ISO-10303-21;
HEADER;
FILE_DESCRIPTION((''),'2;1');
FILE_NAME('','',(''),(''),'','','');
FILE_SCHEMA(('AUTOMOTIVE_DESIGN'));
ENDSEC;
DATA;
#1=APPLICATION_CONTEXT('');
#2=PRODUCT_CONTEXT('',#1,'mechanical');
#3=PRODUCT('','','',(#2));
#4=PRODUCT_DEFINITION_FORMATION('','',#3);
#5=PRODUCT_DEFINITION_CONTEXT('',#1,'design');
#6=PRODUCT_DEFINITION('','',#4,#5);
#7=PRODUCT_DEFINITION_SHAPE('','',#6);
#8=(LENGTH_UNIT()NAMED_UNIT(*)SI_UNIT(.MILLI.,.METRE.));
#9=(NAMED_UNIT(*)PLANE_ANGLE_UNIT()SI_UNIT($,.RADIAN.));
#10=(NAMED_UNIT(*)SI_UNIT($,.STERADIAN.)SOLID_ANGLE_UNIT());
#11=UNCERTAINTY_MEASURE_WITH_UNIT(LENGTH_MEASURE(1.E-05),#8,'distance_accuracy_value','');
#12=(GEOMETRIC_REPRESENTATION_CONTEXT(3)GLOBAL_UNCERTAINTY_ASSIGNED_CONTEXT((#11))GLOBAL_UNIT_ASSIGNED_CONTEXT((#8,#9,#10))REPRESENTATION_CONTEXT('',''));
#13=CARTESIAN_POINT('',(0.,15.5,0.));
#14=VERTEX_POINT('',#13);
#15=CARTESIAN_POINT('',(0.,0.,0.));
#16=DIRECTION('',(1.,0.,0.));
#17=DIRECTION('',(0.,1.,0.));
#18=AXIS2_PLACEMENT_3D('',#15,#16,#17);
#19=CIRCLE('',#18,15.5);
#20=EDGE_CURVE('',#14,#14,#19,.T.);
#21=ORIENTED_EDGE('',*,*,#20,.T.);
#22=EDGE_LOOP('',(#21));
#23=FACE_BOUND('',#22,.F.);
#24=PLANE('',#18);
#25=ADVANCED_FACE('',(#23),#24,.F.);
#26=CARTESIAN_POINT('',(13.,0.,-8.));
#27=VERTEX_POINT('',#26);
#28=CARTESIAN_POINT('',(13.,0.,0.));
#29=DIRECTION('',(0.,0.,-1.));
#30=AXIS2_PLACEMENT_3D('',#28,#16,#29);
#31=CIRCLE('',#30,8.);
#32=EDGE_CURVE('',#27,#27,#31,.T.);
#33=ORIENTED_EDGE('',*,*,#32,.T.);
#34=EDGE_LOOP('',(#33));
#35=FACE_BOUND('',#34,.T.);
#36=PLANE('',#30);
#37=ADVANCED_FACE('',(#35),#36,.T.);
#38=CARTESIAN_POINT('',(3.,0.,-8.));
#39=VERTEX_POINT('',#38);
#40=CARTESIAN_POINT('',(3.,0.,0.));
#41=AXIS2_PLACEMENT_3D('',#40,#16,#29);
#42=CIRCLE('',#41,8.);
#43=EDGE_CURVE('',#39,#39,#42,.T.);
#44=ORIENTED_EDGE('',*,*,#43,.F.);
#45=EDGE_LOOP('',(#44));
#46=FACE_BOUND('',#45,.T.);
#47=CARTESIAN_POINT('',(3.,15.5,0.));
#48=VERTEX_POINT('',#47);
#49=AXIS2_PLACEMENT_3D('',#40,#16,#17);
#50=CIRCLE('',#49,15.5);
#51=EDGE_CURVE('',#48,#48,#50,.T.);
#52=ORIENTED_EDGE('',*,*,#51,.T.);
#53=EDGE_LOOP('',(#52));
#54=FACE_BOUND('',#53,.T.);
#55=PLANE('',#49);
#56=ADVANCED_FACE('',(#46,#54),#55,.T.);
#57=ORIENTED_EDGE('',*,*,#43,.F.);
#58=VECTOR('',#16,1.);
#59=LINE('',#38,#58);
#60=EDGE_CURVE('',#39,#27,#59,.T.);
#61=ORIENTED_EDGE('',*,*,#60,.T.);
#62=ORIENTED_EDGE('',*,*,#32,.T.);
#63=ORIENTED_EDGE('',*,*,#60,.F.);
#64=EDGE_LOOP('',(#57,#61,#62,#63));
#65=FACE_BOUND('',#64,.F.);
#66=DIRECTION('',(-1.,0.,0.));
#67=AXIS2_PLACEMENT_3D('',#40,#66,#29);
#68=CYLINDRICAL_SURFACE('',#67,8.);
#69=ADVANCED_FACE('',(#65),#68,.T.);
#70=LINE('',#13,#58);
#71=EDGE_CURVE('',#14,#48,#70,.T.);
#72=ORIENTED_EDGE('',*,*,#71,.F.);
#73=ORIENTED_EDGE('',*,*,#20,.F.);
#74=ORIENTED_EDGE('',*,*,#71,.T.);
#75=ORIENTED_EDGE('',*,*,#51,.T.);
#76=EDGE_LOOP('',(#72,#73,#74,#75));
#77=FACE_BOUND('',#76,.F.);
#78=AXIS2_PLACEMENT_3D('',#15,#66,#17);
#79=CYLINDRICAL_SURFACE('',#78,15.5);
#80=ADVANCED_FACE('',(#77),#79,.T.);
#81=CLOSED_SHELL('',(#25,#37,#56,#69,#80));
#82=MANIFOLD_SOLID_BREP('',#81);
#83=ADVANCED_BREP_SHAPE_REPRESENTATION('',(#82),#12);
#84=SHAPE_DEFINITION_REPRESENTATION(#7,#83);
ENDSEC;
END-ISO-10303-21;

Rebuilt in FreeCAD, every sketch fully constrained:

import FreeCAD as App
import Part
import Sketcher
from FreeCAD import Vector
Q = App.Units.Quantity

doc = App.newDocument("Part")
body = doc.addObject("PartDesign::Body", "Body")

# Sketch on YZ plane
sketch1 = doc.addObject("Sketcher::SketchObject", "Sketch")
body.addObject(sketch1)
sketch1.AttachmentSupport = (doc.YZ_Plane, [""])
sketch1.MapMode = "FlatFace"
sketch1.addGeometry(Part.Circle(Vector(0, 0, 0), Vector(0, 0, 1), 15.5), False)
sketch1.addConstraint(Sketcher.Constraint("Coincident", 0, 3, -1, 1))
sketch1.addConstraint(Sketcher.Constraint("Diameter", 0, Q("31 mm")))
pad1 = doc.addObject("PartDesign::Pad", "Pad")
body.addObject(pad1)
pad1.Profile = sketch1
pad1.Length = 3

# Sketch on YZ plane
sketch2 = doc.addObject("Sketcher::SketchObject", "Sketch001")
body.addObject(sketch2)
sketch2.AttachmentSupport = (doc.YZ_Plane, [""])
sketch2.MapMode = "FlatFace"
sketch2.AttachmentOffset = App.Placement(Vector(0, 0, 3), App.Rotation())
sketch2.addGeometry(Part.Circle(Vector(0, 0, 0), Vector(0, 0, 1), 8), False)
sketch2.addConstraint(Sketcher.Constraint("Coincident", 0, 3, -1, 1))
sketch2.addConstraint(Sketcher.Constraint("Diameter", 0, Q("16 mm")))
pad2 = doc.addObject("PartDesign::Pad", "Pad001")
body.addObject(pad2)
pad2.Profile = sketch2
pad2.Length = 10

doc.recompute()
